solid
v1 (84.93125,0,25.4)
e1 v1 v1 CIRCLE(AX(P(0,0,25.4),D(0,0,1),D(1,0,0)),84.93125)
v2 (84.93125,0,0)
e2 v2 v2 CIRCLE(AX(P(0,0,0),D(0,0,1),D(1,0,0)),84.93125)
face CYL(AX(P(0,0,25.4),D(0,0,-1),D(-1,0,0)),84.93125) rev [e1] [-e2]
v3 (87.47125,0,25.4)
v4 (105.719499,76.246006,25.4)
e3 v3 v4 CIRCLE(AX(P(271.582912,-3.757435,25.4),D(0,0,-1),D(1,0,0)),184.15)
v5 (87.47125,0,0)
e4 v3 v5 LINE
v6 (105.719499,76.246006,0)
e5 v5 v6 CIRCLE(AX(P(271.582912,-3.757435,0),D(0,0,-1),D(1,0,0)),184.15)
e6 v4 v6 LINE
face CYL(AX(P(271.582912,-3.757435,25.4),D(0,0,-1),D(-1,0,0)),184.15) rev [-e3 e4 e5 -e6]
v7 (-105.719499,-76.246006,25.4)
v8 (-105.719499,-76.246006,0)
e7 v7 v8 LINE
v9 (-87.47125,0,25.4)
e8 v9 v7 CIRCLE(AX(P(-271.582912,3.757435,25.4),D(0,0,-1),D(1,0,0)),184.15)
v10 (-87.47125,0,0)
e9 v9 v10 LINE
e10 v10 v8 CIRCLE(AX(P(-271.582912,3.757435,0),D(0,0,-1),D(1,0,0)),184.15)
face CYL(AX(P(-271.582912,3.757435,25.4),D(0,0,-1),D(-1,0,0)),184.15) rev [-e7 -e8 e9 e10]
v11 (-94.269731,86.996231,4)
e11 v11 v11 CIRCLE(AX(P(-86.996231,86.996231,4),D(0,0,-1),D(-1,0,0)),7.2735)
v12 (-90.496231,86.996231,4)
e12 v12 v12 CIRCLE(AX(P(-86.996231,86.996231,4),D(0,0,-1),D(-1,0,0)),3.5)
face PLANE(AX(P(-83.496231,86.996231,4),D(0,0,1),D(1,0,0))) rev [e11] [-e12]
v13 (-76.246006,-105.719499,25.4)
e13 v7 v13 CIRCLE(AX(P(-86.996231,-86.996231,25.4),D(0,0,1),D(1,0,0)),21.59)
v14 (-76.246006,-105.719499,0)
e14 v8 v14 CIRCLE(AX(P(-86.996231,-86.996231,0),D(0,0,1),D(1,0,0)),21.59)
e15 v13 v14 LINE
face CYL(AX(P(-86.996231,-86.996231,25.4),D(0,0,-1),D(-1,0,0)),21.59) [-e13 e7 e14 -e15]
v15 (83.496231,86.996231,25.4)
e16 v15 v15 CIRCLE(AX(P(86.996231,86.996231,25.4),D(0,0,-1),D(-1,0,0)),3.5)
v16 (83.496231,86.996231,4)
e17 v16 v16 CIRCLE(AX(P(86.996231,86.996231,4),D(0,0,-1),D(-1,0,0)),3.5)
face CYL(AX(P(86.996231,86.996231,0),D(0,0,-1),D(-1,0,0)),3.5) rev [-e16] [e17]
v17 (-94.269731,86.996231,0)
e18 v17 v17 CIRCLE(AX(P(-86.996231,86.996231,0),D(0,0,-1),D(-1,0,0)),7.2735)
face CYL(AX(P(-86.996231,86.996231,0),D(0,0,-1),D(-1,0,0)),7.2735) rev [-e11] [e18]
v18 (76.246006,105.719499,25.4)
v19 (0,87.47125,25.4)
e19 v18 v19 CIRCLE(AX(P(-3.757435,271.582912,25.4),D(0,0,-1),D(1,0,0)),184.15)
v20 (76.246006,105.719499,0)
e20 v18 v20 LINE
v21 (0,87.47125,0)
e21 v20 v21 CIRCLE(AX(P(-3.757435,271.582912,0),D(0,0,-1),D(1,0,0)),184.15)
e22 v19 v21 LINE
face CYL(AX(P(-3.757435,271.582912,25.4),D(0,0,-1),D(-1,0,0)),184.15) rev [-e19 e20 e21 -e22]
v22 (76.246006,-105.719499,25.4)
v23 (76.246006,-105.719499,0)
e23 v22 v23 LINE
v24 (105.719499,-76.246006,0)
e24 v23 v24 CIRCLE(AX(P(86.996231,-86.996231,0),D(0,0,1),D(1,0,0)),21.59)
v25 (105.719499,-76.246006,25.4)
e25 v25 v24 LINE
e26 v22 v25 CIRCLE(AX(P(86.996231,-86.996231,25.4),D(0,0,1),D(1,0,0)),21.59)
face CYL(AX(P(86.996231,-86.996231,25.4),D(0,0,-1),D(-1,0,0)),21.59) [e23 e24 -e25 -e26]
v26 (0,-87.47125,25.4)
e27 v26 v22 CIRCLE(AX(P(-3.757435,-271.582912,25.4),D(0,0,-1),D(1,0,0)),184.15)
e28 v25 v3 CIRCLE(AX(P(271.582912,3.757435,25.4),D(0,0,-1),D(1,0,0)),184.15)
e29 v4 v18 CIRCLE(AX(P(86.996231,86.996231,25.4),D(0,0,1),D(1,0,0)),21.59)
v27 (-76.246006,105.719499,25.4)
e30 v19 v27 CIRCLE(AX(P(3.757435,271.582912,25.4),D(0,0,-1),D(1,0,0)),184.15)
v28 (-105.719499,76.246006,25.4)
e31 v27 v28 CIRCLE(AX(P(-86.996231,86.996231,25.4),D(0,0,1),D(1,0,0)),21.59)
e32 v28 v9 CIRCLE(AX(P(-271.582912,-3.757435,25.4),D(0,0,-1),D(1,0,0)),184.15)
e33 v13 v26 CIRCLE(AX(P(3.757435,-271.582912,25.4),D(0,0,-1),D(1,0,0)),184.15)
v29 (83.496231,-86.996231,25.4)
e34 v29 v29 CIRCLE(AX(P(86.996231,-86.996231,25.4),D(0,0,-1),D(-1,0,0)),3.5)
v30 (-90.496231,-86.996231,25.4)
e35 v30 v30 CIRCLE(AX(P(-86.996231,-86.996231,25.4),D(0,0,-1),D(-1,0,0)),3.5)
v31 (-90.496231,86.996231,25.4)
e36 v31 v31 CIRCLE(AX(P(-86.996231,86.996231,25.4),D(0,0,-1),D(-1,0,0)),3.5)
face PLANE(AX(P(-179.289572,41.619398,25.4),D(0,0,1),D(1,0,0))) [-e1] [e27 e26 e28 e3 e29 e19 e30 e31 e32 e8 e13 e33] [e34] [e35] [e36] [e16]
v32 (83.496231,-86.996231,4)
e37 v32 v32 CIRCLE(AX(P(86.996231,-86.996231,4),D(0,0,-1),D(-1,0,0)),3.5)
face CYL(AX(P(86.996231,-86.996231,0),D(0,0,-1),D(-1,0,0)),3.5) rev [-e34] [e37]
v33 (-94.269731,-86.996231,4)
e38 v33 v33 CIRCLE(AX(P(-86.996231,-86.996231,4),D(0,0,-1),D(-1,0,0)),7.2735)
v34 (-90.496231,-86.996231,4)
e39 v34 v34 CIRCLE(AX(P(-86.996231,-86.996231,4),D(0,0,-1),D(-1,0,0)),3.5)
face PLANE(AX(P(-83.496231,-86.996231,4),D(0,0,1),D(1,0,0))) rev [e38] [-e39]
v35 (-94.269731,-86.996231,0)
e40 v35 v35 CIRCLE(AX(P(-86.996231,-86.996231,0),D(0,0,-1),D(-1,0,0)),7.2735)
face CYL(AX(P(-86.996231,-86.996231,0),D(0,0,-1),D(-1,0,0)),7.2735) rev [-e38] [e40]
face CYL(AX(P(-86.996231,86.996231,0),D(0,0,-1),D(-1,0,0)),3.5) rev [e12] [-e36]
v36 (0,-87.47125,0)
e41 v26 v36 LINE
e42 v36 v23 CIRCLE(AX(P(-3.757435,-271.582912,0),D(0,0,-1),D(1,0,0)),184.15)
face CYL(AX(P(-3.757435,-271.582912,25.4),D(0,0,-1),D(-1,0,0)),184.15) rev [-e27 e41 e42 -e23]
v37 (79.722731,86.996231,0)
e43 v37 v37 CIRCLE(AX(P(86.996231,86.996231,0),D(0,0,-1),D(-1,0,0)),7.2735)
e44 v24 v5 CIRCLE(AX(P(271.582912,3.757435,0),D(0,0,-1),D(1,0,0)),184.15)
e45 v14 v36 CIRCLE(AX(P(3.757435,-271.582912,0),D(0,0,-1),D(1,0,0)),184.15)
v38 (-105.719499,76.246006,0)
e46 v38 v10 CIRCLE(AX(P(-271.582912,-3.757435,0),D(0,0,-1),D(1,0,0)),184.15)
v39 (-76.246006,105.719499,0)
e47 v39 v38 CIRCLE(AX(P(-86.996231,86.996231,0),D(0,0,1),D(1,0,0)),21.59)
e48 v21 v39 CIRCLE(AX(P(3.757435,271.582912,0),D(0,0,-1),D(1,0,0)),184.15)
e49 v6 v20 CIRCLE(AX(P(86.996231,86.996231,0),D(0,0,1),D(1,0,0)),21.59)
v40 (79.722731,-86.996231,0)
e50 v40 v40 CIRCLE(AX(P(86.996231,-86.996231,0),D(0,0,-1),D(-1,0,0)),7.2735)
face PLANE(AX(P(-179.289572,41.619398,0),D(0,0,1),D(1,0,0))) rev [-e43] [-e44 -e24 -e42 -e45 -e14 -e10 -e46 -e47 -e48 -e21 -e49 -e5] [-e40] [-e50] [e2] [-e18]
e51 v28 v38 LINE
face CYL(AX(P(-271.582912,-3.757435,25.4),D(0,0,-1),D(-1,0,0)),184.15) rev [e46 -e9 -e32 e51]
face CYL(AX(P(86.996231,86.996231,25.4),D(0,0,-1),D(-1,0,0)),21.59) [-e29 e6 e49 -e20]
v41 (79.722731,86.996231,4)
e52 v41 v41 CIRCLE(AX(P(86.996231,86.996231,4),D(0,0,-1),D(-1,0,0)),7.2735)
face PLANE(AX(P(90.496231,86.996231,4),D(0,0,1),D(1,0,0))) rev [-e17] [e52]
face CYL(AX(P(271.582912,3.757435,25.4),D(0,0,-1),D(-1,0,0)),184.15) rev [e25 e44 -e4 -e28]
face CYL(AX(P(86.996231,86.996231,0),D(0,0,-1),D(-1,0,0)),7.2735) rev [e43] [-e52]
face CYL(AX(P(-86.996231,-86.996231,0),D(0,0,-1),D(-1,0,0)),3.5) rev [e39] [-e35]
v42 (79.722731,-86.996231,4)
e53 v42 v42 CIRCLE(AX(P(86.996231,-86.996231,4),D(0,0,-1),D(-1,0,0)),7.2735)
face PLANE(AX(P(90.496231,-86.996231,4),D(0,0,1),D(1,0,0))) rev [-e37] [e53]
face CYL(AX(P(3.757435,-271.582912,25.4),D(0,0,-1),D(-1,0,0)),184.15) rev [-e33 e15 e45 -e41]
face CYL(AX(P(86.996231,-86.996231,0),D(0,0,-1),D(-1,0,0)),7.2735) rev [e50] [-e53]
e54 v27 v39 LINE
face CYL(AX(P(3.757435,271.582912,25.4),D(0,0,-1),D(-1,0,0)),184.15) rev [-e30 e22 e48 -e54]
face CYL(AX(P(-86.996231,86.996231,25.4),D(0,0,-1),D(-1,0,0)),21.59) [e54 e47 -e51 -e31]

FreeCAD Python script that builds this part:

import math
import FreeCAD as App
import Part
import Sketcher

V = App.Vector
Q = App.Units.Quantity

doc = App.newDocument("Part")
body = doc.addObject("PartDesign::Body", "Body")

sketch1 = doc.addObject("Sketcher::SketchObject", "Sketch")
body.addObject(sketch1)
sketch1.AttachmentSupport = (doc.XY_Plane, [""])
sketch1.MapMode = "FlatFace"
sketch1.addGeometry(Part.ArcOfCircle(Part.Circle(V(3.757435, 271.582912, 0), V(0, 0, 1), 184.15), math.radians(-115.75012), math.radians(-91.169156)), False)
sketch1.addGeometry(Part.ArcOfCircle(Part.Circle(V(-86.996231, 86.996231, 0), V(0, 0, 1), 21.59), math.radians(60.137111), math.radians(209.862889)), False)
sketch1.addGeometry(Part.ArcOfCircle(Part.Circle(V(-271.582912, -3.757435, 0), V(0, 0, 1), 184.15), math.radians(1.169156), math.radians(25.75012)), False)
sketch1.addGeometry(Part.ArcOfCircle(Part.Circle(V(-271.582912, 3.757435, 0), V(0, 0, 1), 184.15), math.radians(-25.75012), math.radians(-1.169156)), False)
sketch1.addGeometry(Part.ArcOfCircle(Part.Circle(V(-86.996231, -86.996231, 0), V(0, 0, 1), 21.59), math.radians(150.137111), math.radians(299.862889)), False)
sketch1.addGeometry(Part.ArcOfCircle(Part.Circle(V(3.757435, -271.582912, 0), V(0, 0, 1), 184.15), math.radians(91.169156), math.radians(115.75012)), False)
sketch1.addGeometry(Part.ArcOfCircle(Part.Circle(V(-3.757435, -271.582912, 0), V(0, 0, 1), 184.15), math.radians(64.24988), math.radians(88.830844)), False)
sketch1.addGeometry(Part.ArcOfCircle(Part.Circle(V(86.996231, -86.996231, 0), V(0, 0, 1), 21.59), math.radians(-119.862889), math.radians(29.862889)), False)
sketch1.addGeometry(Part.ArcOfCircle(Part.Circle(V(271.582912, 3.757435, 0), V(0, 0, 1), 184.15), math.radians(-178.830844), math.radians(-154.24988)), False)
sketch1.addGeometry(Part.ArcOfCircle(Part.Circle(V(271.582912, -3.757435, 0), V(0, 0, 1), 184.15), math.radians(154.24988), math.radians(178.830844)), False)
sketch1.addGeometry(Part.ArcOfCircle(Part.Circle(V(86.996231, 86.996231, 0), V(0, 0, 1), 21.59), math.radians(-29.862889), math.radians(119.862889)), False)
sketch1.addGeometry(Part.ArcOfCircle(Part.Circle(V(-3.757435, 271.582912, 0), V(0, 0, 1), 184.15), math.radians(-88.830844), math.radians(-64.24988)), False)
sketch1.addGeometry(Part.Circle(V(0, 0, 0), V(0, 0, 1), 84.93125), False)
sketch1.addConstraint(Sketcher.Constraint("Coincident", 0, 1, 1, 1))
sketch1.addConstraint(Sketcher.Constraint("Coincident", 1, 2, 2, 2))
sketch1.addConstraint(Sketcher.Constraint("Coincident", 2, 1, 3, 2))
sketch1.addConstraint(Sketcher.Constraint("Coincident", 3, 1, 4, 1))
sketch1.addConstraint(Sketcher.Constraint("Coincident", 4, 2, 5, 2))
sketch1.addConstraint(Sketcher.Constraint("Coincident", 5, 1, 6, 2))
sketch1.addConstraint(Sketcher.Constraint("Coincident", 6, 1, 7, 1))
sketch1.addConstraint(Sketcher.Constraint("Coincident", 7, 2, 8, 2))
sketch1.addConstraint(Sketcher.Constraint("Coincident", 8, 1, 9, 2))
sketch1.addConstraint(Sketcher.Constraint("Coincident", 9, 1, 10, 1))
sketch1.addConstraint(Sketcher.Constraint("Coincident", 10, 2, 11, 2))
sketch1.addConstraint(Sketcher.Constraint("Coincident", 11, 1, 0, 2))
sketch1.addConstraint(Sketcher.Constraint("Coincident", 12, 3, -1, 1))
sketch1.addConstraint(Sketcher.Constraint("Equal", 0, 2))
sketch1.addConstraint(Sketcher.Constraint("Equal", 2, 3))
sketch1.addConstraint(Sketcher.Constraint("Equal", 1, 4))
sketch1.addConstraint(Sketcher.Constraint("Equal", 3, 5))
sketch1.addConstraint(Sketcher.Constraint("Equal", 5, 6))
sketch1.addConstraint(Sketcher.Constraint("Equal", 4, 7))
sketch1.addConstraint(Sketcher.Constraint("Equal", 6, 8))
sketch1.addConstraint(Sketcher.Constraint("Equal", 8, 9))
sketch1.addConstraint(Sketcher.Constraint("Equal", 7, 10))
sketch1.addConstraint(Sketcher.Constraint("Equal", 9, 11))
sketch1.addConstraint(Sketcher.Constraint("Symmetric", 0, 3, 6, 3, -1, 1))
sketch1.addConstraint(Sketcher.Constraint("Symmetric", 1, 3, 7, 3, -1, 1))
sketch1.addConstraint(Sketcher.Constraint("Symmetric", 2, 3, 8, 3, -1, 1))
sketch1.addConstraint(Sketcher.Constraint("Symmetric", 3, 3, 9, 3, -1, 1))
sketch1.addConstraint(Sketcher.Constraint("Symmetric", 4, 3, 10, 3, -1, 1))
sketch1.addConstraint(Sketcher.Constraint("Symmetric", 5, 3, 11, 3, -1, 1))
sketch1.addConstraint(Sketcher.Constraint("Symmetric", 5, 3, 6, 3, -2))
sketch1.addConstraint(Sketcher.Constraint("Symmetric", 4, 3, 7, 3, -2))
sketch1.addConstraint(Sketcher.Constraint("Symmetric", 3, 3, 8, 3, -2))
sketch1.addConstraint(Sketcher.Constraint("Radius", 0, Q("7.25 in")))
sketch1.addConstraint(Sketcher.Constraint("Radius", 1, Q("0.85 in")))
sketch1.addConstraint(Sketcher.Constraint("Diameter", 12, Q("6.6875 in")))
sketch1.addConstraint(Sketcher.Constraint("DistanceY", -1, 1, 0, 1, Q("105.719499 mm")))
sketch1.addConstraint(Sketcher.Constraint("DistanceX", 1, 2, -1, 1, Q("105.719499 mm")))
sketch1.addConstraint(Sketcher.Constraint("DistanceX", 1, 3, -1, 1, Q("86.996231 mm")))
sketch1.addConstraint(Sketcher.Constraint("DistanceY", -1, 1, 1, 3, Q("86.996231 mm")))
sketch1.addConstraint(Sketcher.Constraint("DistanceX", 2, 1, -1, 1, Q("87.47125 mm")))
sketch1.addConstraint(Sketcher.Constraint("DistanceY", 5, 1, -1, 1, Q("87.47125 mm")))
pad1 = doc.addObject("PartDesign::Pad", "Pad")
body.addObject(pad1)
pad1.Profile = sketch1
pad1.Length = Q("1 in")

sketch2 = doc.addObject("Sketcher::SketchObject", "Sketch001")
body.addObject(sketch2)
sketch2.AttachmentSupport = (doc.XY_Plane, [""])
sketch2.MapMode = "FlatFace"
sketch2.addGeometry(Part.Circle(V(86.996231, 86.996231, 0), V(0, 0, 1), 3.5), False)
sketch2.addGeometry(Part.Circle(V(-86.996231, 86.996231, 0), V(0, 0, 1), 3.5), False)
sketch2.addGeometry(Part.Circle(V(-86.996231, -86.996231, 0), V(0, 0, 1), 3.5), False)
sketch2.addGeometry(Part.Circle(V(86.996231, -86.996231, 0), V(0, 0, 1), 3.5), False)
sketch2.addConstraint(Sketcher.Constraint("Equal", 0, 1))
sketch2.addConstraint(Sketcher.Constraint("Equal", 1, 2))
sketch2.addConstraint(Sketcher.Constraint("Equal", 2, 3))
sketch2.addConstraint(Sketcher.Constraint("Symmetric", 0, 3, 2, 3, -1, 1))
sketch2.addConstraint(Sketcher.Constraint("Symmetric", 1, 3, 3, 3, -1, 1))
sketch2.addConstraint(Sketcher.Constraint("Symmetric", 0, 3, 1, 3, -2))
sketch2.addConstraint(Sketcher.Constraint("Diameter", 0, Q("7 mm")))
sketch2.addConstraint(Sketcher.Constraint("DistanceX", -1, 1, 0, 3, Q("86.996231 mm")))
sketch2.addConstraint(Sketcher.Constraint("DistanceY", -1, 1, 0, 3, Q("86.996231 mm")))
doc.recompute()
hole = doc.addObject("PartDesign::Hole", "Hole")
body.addObject(hole)
hole.Profile = sketch2
hole.ThreadType = "None"
hole.Diameter = 7
hole.DepthType = "ThroughAll"
hole.HoleCutType = "Counterbore"
hole.HoleCutDiameter = 14.547
hole.HoleCutDepth = 4
hole.Reversed = True

doc.recompute()
